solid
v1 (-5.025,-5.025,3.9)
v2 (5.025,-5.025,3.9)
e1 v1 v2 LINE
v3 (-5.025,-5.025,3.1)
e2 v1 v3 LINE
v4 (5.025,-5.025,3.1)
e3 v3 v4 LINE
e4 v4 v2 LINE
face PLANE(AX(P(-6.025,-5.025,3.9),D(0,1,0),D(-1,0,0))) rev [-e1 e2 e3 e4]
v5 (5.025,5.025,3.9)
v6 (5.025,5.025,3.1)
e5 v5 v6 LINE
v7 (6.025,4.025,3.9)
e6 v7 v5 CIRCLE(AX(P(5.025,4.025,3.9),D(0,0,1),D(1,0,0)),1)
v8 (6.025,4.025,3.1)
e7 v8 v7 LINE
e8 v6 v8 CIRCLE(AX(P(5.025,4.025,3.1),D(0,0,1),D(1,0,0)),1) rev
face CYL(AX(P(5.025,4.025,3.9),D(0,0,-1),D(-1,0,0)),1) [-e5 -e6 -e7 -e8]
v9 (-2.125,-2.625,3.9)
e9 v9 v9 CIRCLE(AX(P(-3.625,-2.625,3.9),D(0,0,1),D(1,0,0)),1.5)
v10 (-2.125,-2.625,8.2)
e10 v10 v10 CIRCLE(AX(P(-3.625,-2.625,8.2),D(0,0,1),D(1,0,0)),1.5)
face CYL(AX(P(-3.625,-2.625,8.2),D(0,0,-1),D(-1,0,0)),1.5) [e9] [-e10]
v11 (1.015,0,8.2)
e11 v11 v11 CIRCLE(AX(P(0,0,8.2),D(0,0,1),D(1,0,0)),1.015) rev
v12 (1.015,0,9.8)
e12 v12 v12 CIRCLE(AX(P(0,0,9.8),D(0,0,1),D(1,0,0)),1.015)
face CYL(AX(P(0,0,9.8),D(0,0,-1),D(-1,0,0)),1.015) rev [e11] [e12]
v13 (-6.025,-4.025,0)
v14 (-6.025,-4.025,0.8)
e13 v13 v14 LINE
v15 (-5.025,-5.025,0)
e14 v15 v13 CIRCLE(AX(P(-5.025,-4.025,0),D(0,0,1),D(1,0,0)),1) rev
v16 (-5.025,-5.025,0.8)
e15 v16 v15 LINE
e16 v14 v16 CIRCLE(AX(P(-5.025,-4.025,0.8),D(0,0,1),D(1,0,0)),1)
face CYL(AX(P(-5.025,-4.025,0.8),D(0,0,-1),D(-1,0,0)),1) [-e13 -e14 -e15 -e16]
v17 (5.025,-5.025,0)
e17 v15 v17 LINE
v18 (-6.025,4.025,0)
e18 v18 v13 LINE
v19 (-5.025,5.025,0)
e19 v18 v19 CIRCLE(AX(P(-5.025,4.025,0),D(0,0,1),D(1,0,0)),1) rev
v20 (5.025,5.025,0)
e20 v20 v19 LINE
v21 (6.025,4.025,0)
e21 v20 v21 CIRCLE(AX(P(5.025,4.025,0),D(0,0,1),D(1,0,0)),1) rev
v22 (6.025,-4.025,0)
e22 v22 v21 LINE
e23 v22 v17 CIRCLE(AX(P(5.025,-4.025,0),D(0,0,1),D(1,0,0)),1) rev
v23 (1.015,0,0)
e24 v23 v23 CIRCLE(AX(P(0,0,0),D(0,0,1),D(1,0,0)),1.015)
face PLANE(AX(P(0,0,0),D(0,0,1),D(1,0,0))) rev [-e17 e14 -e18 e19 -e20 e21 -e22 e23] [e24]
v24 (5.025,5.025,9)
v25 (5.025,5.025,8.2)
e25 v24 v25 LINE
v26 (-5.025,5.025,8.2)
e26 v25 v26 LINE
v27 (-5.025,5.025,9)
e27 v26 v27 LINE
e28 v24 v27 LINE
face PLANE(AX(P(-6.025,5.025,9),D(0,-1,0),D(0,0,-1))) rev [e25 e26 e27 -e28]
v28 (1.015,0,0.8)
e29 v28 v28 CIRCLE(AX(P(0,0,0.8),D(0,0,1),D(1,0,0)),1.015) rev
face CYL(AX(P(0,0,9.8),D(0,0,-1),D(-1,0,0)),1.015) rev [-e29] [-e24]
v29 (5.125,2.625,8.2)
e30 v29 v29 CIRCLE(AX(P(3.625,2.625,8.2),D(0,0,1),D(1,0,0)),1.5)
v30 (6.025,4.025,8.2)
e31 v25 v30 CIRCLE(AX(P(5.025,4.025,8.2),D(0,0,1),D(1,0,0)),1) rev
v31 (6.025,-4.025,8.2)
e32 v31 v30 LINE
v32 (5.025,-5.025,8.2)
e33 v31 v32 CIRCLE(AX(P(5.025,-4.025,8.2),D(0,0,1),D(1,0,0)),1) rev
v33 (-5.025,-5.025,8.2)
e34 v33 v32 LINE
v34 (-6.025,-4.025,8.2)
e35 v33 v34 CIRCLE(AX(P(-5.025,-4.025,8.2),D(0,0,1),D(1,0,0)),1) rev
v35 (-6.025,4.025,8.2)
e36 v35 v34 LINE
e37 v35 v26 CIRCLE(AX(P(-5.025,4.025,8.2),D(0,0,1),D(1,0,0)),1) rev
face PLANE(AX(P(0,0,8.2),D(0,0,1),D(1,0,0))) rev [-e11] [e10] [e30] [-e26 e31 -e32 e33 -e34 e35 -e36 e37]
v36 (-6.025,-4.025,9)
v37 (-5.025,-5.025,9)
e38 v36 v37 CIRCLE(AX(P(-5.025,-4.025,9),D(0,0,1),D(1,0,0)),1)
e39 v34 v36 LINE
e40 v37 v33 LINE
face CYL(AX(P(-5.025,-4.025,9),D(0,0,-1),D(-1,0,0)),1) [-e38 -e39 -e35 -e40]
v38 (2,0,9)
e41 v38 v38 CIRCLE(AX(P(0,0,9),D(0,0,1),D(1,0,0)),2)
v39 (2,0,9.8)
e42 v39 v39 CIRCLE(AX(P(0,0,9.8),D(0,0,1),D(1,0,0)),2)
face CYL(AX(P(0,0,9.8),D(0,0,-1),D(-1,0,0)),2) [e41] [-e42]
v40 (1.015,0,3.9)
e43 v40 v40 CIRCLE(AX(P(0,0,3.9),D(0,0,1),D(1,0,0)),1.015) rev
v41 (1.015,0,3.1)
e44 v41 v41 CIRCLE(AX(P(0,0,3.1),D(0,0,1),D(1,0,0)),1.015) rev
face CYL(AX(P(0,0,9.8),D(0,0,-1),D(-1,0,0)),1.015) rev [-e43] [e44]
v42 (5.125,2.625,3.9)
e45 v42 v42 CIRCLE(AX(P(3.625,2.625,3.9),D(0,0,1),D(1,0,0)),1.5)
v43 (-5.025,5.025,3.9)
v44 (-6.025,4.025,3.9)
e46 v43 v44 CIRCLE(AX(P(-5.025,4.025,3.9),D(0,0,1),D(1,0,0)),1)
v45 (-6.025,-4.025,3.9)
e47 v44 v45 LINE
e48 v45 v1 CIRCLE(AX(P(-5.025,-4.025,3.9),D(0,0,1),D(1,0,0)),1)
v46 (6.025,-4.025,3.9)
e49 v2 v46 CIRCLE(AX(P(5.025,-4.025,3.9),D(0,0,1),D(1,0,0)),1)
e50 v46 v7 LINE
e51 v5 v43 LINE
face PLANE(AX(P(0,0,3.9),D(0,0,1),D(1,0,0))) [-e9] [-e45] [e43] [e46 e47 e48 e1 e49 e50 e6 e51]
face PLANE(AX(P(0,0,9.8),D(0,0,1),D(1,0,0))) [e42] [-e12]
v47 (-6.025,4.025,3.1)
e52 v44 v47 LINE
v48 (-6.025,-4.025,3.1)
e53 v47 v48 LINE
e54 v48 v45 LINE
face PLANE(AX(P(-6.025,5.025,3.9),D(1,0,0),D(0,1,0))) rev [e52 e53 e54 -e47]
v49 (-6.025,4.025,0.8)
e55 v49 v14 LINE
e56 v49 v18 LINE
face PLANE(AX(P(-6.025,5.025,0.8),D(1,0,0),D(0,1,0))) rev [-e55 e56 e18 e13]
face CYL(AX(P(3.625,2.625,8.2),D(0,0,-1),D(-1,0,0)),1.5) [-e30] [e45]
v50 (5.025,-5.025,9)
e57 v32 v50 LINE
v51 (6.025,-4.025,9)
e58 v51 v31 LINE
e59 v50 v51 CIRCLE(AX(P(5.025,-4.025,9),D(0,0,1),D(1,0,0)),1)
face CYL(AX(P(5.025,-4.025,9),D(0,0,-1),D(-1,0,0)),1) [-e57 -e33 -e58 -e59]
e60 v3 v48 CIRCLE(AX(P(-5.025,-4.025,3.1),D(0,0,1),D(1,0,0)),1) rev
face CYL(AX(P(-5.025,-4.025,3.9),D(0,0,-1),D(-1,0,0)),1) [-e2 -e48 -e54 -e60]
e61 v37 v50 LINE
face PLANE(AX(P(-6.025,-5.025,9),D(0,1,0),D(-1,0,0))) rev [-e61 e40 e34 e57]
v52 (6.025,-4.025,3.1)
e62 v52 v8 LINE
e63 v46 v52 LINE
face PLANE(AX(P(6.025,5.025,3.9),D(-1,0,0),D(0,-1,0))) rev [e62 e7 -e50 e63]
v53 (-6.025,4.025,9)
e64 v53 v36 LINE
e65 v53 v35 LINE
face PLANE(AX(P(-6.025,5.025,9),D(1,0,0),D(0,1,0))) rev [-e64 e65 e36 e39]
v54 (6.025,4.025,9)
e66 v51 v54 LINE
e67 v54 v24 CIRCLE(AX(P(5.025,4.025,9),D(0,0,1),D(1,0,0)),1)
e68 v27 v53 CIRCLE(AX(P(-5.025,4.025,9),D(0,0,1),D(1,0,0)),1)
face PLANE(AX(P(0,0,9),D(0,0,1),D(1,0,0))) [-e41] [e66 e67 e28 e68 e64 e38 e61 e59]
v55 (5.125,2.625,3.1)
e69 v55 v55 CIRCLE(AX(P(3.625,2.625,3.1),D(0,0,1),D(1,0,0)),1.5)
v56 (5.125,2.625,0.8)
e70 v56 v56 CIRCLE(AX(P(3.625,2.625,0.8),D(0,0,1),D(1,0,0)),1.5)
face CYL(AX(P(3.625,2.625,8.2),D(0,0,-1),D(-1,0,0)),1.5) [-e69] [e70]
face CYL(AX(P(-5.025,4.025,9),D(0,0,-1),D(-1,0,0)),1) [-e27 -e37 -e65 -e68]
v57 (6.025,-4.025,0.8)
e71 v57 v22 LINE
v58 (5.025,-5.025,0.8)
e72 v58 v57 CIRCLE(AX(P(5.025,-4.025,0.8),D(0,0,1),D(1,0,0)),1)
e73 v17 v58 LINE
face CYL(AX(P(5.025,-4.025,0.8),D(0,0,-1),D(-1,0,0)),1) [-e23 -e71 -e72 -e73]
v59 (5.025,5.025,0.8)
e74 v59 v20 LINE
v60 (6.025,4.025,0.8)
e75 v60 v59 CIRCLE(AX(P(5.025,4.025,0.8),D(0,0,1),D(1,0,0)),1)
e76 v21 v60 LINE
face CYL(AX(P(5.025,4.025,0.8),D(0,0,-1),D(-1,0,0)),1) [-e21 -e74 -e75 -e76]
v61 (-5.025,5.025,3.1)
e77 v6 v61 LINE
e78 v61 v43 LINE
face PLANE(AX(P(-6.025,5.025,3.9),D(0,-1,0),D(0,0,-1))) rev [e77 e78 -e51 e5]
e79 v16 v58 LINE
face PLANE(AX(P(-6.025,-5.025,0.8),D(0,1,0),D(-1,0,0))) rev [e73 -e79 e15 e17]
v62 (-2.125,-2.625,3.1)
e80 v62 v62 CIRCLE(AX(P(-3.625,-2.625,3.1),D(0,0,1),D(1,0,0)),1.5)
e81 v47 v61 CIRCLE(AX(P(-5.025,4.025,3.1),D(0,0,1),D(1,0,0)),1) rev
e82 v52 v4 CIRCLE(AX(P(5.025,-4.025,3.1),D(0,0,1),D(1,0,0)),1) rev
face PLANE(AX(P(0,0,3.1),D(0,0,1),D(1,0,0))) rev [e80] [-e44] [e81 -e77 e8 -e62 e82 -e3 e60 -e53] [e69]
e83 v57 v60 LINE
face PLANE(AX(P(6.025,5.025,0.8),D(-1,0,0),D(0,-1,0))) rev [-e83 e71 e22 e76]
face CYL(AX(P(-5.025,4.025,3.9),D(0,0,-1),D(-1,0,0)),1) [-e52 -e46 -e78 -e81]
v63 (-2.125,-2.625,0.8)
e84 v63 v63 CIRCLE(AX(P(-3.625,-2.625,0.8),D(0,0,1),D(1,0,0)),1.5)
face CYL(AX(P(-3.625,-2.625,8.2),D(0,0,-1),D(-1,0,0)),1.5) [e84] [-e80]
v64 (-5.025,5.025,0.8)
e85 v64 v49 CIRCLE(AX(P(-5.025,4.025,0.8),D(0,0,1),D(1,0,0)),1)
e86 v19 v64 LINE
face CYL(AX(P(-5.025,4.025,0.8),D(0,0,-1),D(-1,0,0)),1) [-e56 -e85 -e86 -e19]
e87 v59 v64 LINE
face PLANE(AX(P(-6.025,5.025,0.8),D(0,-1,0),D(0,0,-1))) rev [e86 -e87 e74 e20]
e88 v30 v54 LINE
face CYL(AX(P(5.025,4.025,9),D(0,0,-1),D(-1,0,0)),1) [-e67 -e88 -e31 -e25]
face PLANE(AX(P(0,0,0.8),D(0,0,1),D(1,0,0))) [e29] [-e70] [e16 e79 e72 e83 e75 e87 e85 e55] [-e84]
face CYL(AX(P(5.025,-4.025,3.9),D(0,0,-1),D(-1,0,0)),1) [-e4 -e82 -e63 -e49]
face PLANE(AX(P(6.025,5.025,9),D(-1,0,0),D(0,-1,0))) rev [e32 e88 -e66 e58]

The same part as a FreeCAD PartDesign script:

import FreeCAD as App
import Part
import Sketcher

V = App.Vector
Q = App.Units.Quantity


def edges_at(feature, points):
    """Names of the edges that pass closest to the given points."""
    edges = feature.Shape.Edges
    near = lambda p: min(range(len(edges)), key=lambda i: edges[i].distToShape(Part.Vertex(*p))[0])
    return sorted({f"Edge{near(p) + 1}" for p in points})

doc = App.newDocument("Part")
body = doc.addObject("PartDesign::Body", "Body")

sketch1 = body.newObject("Sketcher::SketchObject", "Sketch")
sketch1.AttachmentSupport = (doc.getObject("XY_Plane"), [""])
sketch1.MapMode = "FlatFace"
sketch1.addGeometry([
    Part.LineSegment(V(-6, 5, 0), V(-6, -5, 0)),
    Part.LineSegment(V(-6, -5, 0), V(6, -5, 0)),
    Part.LineSegment(V(6, -5, 0), V(6, 5, 0)),
    Part.LineSegment(V(6, 5, 0), V(-6, 5, 0)),
], False)
sketch1.addConstraint([
    Sketcher.Constraint("Coincident", 0, 2, 1, 1),
    Sketcher.Constraint("Coincident", 1, 2, 2, 1),
    Sketcher.Constraint("Coincident", 2, 2, 3, 1),
    Sketcher.Constraint("Coincident", 3, 2, 0, 1),
    Sketcher.Constraint("Vertical", 0),
    Sketcher.Constraint("Horizontal", 1),
    Sketcher.Constraint("Vertical", 2),
    Sketcher.Constraint("Horizontal", 3),
    Sketcher.Constraint("Symmetric", 0, 2, 2, 2, -1, 1),
    Sketcher.Constraint("DistanceX", 1, 1, 1, 2, Q("12.05 mm")),
    Sketcher.Constraint("DistanceY", 0, 2, 0, 1, Q("10.05 mm")),
])
pad1 = body.newObject("PartDesign::Pad", "Pad")
pad1.Profile = sketch1
pad1.Length = 0.8
doc.recompute()

fillet = body.newObject("PartDesign::Fillet", "Fillet")
fillet.Base = (pad1, edges_at(pad1, [
    (6.025, -5.025, 0.4),
    (-6.025, -5.025, 0.4),
    (-6.025, 5.025, 0.4),
    (6.025, 5.025, 0.4),
]))
fillet.Radius = 1

sketch2 = body.newObject("Sketcher::SketchObject", "Sketch001")
sketch2.AttachmentSupport = (doc.getObject("XY_Plane"), [""])
sketch2.MapMode = "FlatFace"
sketch2.AttachmentOffset = App.Placement(V(0, 0, 0.8), App.Rotation())
sketch2.addGeometry([
    Part.Circle(V(3.6, 2.6, 0), V(0, 0, 1), 1.5),
    Part.Circle(V(-3.6, -2.6, 0), V(0, 0, 1), 1.5),
], False)
sketch2.addConstraint([
    Sketcher.Constraint("Equal", 0, 1),
    Sketcher.Constraint("Symmetric", 0, 3, 1, 3, -1, 1),
    Sketcher.Constraint("Diameter", 0, Q("3 mm")),
    Sketcher.Constraint("DistanceX", 1, 3, 0, 3, Q("7.25 mm")),
    Sketcher.Constraint("DistanceY", 1, 3, 0, 3, Q("5.25 mm")),
])
pad2 = body.newObject("PartDesign::Pad", "Pad001")
pad2.Profile = sketch2
pad2.Length = 7.4
doc.recompute()

linearpattern = body.newObject("PartDesign::LinearPattern", "LinearPattern")
linearpattern.Originals = [pad1]
linearpattern.Direction = (doc.getObject("Z_Axis"), [""])
linearpattern.Mode = "offset"
linearpattern.Offset = 3.1
linearpattern.Occurrences = 2
body.Tip = linearpattern
doc.recompute()

fillet2 = body.newObject("PartDesign::Fillet", "Fillet001")
fillet2.Base = (linearpattern, edges_at(linearpattern, [
    (6.025, -5.025, 3.5),
    (-6.025, -5.025, 3.5),
    (-6.025, 5.025, 3.5),
    (6.025, 5.025, 3.5),
]))
fillet2.Radius = 1
doc.recompute()

linearpattern2 = body.newObject("PartDesign::LinearPattern", "LinearPattern001")
linearpattern2.Originals = [pad1]
linearpattern2.Direction = (doc.getObject("Z_Axis"), [""])
linearpattern2.Mode = "offset"
linearpattern2.Offset = 8.2
linearpattern2.Occurrences = 2
body.Tip = linearpattern2
doc.recompute()

fillet3 = body.newObject("PartDesign::Fillet", "Fillet002")
fillet3.Base = (linearpattern2, edges_at(linearpattern2, [
    (6.025, -5.025, 8.6),
    (-6.025, -5.025, 8.6),
    (-6.025, 5.025, 8.6),
    (6.025, 5.025, 8.6),
]))
fillet3.Radius = 1

sketch3 = body.newObject("Sketcher::SketchObject", "Sketch002")
sketch3.AttachmentSupport = (doc.getObject("XY_Plane"), [""])
sketch3.MapMode = "FlatFace"
sketch3.AttachmentOffset = App.Placement(V(0, 0, 9), App.Rotation())
sketch3.addGeometry([
    Part.Circle(V(0, 0, 0), V(0, 0, 1), 2),
    Part.Circle(V(0, 0, 0), V(0, 0, 1), 1),
], False)
sketch3.addConstraint([
    Sketcher.Constraint("Coincident", 0, 3, -1, 1),
    Sketcher.Constraint("Coincident", 1, 3, -1, 1),
    Sketcher.Constraint("Diameter", 0, Q("4 mm")),
    Sketcher.Constraint("Diameter", 1, Q("2.03 mm")),
])
pad3 = body.newObject("PartDesign::Pad", "Pad002")
pad3.Profile = sketch3
pad3.Length = 0.8

sketch4 = body.newObject("Sketcher::SketchObject", "Sketch003")
sketch4.AttachmentSupport = (doc.getObject("XY_Plane"), [""])
sketch4.MapMode = "FlatFace"
sketch4.addGeometry(Part.Circle(V(0, 0, 0), V(0, 0, 1), 1), False)
sketch4.addConstraint([
    Sketcher.Constraint("Coincident", 0, 3, -1, 1),
    Sketcher.Constraint("Diameter", 0, Q("2.03 mm")),
])
pocket1 = body.newObject("PartDesign::Pocket", "Pocket")
pocket1.Profile = sketch4
pocket1.Type = "ThroughAll"
pocket1.Reversed = True

doc.recompute()
